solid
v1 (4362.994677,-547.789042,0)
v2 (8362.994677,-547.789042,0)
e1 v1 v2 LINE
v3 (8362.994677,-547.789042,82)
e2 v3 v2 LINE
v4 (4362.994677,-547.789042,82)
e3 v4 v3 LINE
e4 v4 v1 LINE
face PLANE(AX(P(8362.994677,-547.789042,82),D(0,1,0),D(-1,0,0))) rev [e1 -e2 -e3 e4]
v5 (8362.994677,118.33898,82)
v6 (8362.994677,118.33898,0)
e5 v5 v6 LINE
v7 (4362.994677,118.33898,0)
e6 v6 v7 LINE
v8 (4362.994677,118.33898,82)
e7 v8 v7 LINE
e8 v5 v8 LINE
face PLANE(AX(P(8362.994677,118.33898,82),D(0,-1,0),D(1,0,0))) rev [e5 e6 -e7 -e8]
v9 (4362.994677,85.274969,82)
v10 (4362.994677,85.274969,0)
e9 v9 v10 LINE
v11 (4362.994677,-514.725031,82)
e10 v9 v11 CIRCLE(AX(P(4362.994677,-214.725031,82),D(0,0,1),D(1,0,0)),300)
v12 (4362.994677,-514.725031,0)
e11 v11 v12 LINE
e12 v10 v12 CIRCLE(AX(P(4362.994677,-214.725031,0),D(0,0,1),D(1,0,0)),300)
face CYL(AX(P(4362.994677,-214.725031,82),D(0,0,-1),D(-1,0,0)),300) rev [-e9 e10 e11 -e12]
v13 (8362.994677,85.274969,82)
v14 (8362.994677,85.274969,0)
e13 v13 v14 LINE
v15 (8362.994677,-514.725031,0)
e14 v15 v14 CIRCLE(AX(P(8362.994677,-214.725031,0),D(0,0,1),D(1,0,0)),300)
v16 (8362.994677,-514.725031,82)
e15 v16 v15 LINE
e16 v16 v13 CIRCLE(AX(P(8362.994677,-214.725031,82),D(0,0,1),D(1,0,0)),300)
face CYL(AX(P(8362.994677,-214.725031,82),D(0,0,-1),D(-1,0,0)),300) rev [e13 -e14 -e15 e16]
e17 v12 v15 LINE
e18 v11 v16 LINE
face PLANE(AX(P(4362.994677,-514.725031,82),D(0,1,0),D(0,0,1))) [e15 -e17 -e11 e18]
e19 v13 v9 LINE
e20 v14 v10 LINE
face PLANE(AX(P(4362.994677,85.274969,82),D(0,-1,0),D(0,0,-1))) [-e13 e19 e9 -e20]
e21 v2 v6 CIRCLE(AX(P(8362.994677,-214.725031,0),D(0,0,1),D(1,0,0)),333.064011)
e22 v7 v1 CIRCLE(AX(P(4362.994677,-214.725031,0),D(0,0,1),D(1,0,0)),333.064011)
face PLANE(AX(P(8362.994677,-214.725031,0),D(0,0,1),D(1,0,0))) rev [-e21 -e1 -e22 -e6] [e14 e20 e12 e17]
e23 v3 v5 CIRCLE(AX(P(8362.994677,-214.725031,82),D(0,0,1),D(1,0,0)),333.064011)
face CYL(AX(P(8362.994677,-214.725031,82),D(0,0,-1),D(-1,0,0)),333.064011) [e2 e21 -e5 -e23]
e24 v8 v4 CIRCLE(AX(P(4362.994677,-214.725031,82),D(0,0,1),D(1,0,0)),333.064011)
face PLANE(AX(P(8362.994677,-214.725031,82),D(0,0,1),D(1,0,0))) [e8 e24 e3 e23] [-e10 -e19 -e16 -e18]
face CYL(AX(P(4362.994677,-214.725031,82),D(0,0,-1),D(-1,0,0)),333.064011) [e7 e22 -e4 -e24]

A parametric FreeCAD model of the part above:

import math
import FreeCAD as App
import Part
import Sketcher
Q = App.Units.Quantity

doc = App.newDocument("Part")
params = doc.addObject("Spreadsheet::Sheet", "Params")
for row, (alias, value) in enumerate([
    ("sketch1_radius", "300 mm"),
    ("sketch1_width", "4000 mm"),
    ("pad1_length", "82 mm"),
], start=1):
    params.set(f"A{row}", alias)
    params.set(f"B{row}", "=" + value)
    params.setAlias(f"B{row}", alias)

body = doc.addObject("PartDesign::Body", "Body")

# Sketch on XY plane
sketch1 = body.newObject("Sketcher::SketchObject", "Sketch")
sketch1.AttachmentSupport = (doc.getObject("XY_Plane"), [""])
sketch1.MapMode = "FlatFace"
sketch1.addGeometry([
    Part.LineSegment(App.Vector(8362.994677, 118.33898, 0), App.Vector(4362.994677, 118.33898, 0)),  # 0
    Part.ArcOfCircle(Part.Circle(App.Vector(4362.994677, -214.725031, 0), App.Vector(0, 0, 1), 333.064011), math.radians(90), math.radians(270)),  # 1
    Part.LineSegment(App.Vector(4362.994677, -547.789042, 0), App.Vector(8362.994677, -547.789042, 0)),  # 2
    Part.ArcOfCircle(Part.Circle(App.Vector(8362.994677, -214.725031, 0), App.Vector(0, 0, 1), 333.064011), math.radians(-90), math.radians(90)),  # 3
    Part.ArcOfCircle(Part.Circle(App.Vector(4362.994677, -214.725031, 0), App.Vector(0, 0, 1), 300), math.radians(90), math.radians(270)),  # 4
    Part.LineSegment(App.Vector(4362.994677, 85.274969, 0), App.Vector(8362.994677, 85.274969, 0)),  # 5
    Part.ArcOfCircle(Part.Circle(App.Vector(8362.994677, -214.725031, 0), App.Vector(0, 0, 1), 300), math.radians(-90), math.radians(90)),  # 6
    Part.LineSegment(App.Vector(8362.994677, -514.725031, 0), App.Vector(4362.994677, -514.725031, 0)),  # 7
], False)
sketch1.addConstraint([
    Sketcher.Constraint("Tangent", 0, 2, 1, 1),
    Sketcher.Constraint("Tangent", 1, 2, 2, 1),
    Sketcher.Constraint("Tangent", 2, 2, 3, 1),
    Sketcher.Constraint("Tangent", 3, 2, 0, 1),
    Sketcher.Constraint("Tangent", 4, 1, 5, 1),
    Sketcher.Constraint("Tangent", 5, 2, 6, 2),
    Sketcher.Constraint("Tangent", 6, 1, 7, 1),
    Sketcher.Constraint("Tangent", 7, 2, 4, 2),
    Sketcher.Constraint("Horizontal", 0),
    Sketcher.Constraint("Horizontal", 2),
    Sketcher.Constraint("Horizontal", 5),
    Sketcher.Constraint("Horizontal", 7),
    Sketcher.Constraint("Coincident", 4, 3, 1, 3),
    Sketcher.Constraint("Vertical", 6, 3, 2, 2),
    Sketcher.Constraint("Radius", 4, Q("300 mm")),
    Sketcher.Constraint("DistanceX", 0, 2, 0, 1, Q("4000 mm")),
    Sketcher.Constraint("Radius", 1, Q("333.064011 mm")),
    Sketcher.Constraint("DistanceY", 1, 3, -1, 1, Q("214.725031 mm")),
    Sketcher.Constraint("DistanceX", -1, 1, 1, 3, Q("4362.994677 mm")),
])
sketch1.setExpression("Constraints[14]", "Params.sketch1_radius")
sketch1.setExpression("Constraints[15]", "Params.sketch1_width")
pad1 = body.newObject("PartDesign::Pad", "Pad")
pad1.Profile = sketch1
pad1.setExpression("Length", "Params.pad1_length")

doc.recompute()
